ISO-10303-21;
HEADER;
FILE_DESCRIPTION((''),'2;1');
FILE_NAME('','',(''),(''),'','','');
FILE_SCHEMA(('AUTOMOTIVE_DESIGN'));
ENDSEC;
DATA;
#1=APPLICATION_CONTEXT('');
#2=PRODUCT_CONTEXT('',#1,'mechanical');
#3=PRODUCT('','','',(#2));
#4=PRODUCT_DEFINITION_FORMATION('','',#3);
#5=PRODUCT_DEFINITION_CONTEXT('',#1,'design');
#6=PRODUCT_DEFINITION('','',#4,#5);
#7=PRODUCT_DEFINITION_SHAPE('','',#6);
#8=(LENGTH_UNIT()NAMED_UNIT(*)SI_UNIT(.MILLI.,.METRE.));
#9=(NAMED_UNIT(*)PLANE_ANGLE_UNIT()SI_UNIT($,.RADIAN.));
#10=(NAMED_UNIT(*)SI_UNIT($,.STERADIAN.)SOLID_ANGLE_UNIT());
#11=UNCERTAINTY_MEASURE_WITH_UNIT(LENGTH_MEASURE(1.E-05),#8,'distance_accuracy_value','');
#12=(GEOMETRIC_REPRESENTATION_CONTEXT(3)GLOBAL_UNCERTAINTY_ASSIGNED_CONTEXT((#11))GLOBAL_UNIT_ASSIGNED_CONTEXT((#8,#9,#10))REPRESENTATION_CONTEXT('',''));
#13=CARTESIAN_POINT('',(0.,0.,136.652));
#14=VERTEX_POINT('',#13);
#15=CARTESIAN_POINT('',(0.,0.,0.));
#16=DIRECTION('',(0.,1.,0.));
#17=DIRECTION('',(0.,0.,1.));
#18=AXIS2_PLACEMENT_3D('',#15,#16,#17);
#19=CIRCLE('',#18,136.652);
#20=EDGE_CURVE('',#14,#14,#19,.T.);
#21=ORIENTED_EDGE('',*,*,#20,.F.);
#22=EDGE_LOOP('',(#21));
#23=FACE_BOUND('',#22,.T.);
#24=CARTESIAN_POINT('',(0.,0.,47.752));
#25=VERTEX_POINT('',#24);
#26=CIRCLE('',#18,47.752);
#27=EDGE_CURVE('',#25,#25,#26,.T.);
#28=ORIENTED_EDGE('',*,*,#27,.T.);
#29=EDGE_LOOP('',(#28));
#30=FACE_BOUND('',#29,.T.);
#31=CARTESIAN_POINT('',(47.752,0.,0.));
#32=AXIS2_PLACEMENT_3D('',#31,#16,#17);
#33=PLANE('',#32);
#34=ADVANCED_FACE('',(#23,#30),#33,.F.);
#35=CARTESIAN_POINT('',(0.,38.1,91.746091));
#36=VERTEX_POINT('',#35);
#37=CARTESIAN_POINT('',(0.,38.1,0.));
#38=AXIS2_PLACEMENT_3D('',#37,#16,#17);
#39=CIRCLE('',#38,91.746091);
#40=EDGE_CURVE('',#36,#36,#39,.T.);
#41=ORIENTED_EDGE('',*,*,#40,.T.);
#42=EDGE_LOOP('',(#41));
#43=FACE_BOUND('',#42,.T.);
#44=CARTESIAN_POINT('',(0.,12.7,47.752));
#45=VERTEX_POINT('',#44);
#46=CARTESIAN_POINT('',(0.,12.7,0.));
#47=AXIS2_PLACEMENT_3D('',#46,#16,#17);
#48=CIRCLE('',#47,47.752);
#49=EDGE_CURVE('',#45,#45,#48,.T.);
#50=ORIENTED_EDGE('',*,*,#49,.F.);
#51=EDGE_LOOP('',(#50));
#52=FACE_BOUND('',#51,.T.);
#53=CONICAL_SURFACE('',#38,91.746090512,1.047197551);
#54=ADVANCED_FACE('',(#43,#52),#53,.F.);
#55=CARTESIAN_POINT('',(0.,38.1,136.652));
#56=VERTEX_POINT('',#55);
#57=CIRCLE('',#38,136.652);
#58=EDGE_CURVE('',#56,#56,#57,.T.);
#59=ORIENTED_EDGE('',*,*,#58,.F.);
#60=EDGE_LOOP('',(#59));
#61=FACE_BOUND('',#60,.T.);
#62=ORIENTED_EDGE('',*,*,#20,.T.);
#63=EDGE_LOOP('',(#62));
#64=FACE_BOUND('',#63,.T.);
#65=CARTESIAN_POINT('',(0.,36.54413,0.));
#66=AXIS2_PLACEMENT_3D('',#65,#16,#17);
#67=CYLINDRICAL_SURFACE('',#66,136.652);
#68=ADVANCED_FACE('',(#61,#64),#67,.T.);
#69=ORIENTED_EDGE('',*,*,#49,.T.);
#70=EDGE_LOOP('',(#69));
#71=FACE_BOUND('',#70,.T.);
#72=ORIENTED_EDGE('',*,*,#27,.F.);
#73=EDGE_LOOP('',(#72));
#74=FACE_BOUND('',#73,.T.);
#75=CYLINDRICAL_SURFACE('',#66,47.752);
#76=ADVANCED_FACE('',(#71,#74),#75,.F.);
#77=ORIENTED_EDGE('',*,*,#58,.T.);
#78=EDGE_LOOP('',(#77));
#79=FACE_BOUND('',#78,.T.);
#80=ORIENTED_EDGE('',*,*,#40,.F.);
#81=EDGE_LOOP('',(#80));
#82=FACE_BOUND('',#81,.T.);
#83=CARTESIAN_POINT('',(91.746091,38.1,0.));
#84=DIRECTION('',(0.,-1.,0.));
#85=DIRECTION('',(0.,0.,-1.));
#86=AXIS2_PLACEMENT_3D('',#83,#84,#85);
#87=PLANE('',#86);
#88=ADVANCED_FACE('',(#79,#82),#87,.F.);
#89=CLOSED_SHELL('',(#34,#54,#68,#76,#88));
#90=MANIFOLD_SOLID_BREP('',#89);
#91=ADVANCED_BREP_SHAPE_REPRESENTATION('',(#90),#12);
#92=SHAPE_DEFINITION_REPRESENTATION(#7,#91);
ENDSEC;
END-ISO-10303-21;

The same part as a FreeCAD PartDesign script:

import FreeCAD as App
import Part
import Sketcher
Q = App.Units.Quantity

doc = App.newDocument("Part")
body = doc.addObject("PartDesign::Body", "Body")

# Sketch on XY plane
sketch1 = doc.addObject("Sketcher::SketchObject", "Sketch")
body.addObject(sketch1)
sketch1.AttachmentSupport = (doc.XY_Plane, [""])
sketch1.MapMode = "FlatFace"
sketch1.addGeometry(Part.LineSegment(App.Vector(48, 13, 0), App.Vector(48, 0, 0)), False)
sketch1.addGeometry(Part.LineSegment(App.Vector(48, 0, 0), App.Vector(137, 0, 0)), False)
sketch1.addGeometry(Part.LineSegment(App.Vector(137, 0, 0), App.Vector(137, 38, 0)), False)
sketch1.addGeometry(Part.LineSegment(App.Vector(137, 38, 0), App.Vector(92, 38, 0)), False)
sketch1.addGeometry(Part.LineSegment(App.Vector(92, 38, 0), App.Vector(48, 13, 0)), False)
sketch1.addConstraint(Sketcher.Constraint("Coincident", 0, 2, 1, 1))
sketch1.addConstraint(Sketcher.Constraint("Coincident", 1, 2, 2, 1))
sketch1.addConstraint(Sketcher.Constraint("Coincident", 2, 2, 3, 1))
sketch1.addConstraint(Sketcher.Constraint("Coincident", 3, 2, 4, 1))
sketch1.addConstraint(Sketcher.Constraint("Coincident", 4, 2, 0, 1))
sketch1.addConstraint(Sketcher.Constraint("Vertical", 0))
sketch1.addConstraint(Sketcher.Constraint("Horizontal", 1))
sketch1.addConstraint(Sketcher.Constraint("Vertical", 2))
sketch1.addConstraint(Sketcher.Constraint("Horizontal", 3))
sketch1.addConstraint(Sketcher.Constraint("PointOnObject", 0, 2, -1))
sketch1.addConstraint(Sketcher.Constraint("Distance", 4, Q("2 in")))
sketch1.addConstraint(Sketcher.Constraint("DistanceX", 1, 1, 1, 2, Q("3.5 in")))
sketch1.addConstraint(Sketcher.Constraint("DistanceY", 0, 2, 0, 1, Q("0.5 in")))
sketch1.addConstraint(Sketcher.Constraint("DistanceY", 2, 1, 2, 2, Q("1.5 in")))
sketch1.addConstraint(Sketcher.Constraint("DistanceX", -1, 1, 0, 2, Q("1.88 in")))
revolution = doc.addObject("PartDesign::Revolution", "Revolution")
body.addObject(revolution)
revolution.Profile = sketch1
revolution.ReferenceAxis = (sketch1, ["V_Axis"])
revolution.Angle = 360

doc.recompute()
